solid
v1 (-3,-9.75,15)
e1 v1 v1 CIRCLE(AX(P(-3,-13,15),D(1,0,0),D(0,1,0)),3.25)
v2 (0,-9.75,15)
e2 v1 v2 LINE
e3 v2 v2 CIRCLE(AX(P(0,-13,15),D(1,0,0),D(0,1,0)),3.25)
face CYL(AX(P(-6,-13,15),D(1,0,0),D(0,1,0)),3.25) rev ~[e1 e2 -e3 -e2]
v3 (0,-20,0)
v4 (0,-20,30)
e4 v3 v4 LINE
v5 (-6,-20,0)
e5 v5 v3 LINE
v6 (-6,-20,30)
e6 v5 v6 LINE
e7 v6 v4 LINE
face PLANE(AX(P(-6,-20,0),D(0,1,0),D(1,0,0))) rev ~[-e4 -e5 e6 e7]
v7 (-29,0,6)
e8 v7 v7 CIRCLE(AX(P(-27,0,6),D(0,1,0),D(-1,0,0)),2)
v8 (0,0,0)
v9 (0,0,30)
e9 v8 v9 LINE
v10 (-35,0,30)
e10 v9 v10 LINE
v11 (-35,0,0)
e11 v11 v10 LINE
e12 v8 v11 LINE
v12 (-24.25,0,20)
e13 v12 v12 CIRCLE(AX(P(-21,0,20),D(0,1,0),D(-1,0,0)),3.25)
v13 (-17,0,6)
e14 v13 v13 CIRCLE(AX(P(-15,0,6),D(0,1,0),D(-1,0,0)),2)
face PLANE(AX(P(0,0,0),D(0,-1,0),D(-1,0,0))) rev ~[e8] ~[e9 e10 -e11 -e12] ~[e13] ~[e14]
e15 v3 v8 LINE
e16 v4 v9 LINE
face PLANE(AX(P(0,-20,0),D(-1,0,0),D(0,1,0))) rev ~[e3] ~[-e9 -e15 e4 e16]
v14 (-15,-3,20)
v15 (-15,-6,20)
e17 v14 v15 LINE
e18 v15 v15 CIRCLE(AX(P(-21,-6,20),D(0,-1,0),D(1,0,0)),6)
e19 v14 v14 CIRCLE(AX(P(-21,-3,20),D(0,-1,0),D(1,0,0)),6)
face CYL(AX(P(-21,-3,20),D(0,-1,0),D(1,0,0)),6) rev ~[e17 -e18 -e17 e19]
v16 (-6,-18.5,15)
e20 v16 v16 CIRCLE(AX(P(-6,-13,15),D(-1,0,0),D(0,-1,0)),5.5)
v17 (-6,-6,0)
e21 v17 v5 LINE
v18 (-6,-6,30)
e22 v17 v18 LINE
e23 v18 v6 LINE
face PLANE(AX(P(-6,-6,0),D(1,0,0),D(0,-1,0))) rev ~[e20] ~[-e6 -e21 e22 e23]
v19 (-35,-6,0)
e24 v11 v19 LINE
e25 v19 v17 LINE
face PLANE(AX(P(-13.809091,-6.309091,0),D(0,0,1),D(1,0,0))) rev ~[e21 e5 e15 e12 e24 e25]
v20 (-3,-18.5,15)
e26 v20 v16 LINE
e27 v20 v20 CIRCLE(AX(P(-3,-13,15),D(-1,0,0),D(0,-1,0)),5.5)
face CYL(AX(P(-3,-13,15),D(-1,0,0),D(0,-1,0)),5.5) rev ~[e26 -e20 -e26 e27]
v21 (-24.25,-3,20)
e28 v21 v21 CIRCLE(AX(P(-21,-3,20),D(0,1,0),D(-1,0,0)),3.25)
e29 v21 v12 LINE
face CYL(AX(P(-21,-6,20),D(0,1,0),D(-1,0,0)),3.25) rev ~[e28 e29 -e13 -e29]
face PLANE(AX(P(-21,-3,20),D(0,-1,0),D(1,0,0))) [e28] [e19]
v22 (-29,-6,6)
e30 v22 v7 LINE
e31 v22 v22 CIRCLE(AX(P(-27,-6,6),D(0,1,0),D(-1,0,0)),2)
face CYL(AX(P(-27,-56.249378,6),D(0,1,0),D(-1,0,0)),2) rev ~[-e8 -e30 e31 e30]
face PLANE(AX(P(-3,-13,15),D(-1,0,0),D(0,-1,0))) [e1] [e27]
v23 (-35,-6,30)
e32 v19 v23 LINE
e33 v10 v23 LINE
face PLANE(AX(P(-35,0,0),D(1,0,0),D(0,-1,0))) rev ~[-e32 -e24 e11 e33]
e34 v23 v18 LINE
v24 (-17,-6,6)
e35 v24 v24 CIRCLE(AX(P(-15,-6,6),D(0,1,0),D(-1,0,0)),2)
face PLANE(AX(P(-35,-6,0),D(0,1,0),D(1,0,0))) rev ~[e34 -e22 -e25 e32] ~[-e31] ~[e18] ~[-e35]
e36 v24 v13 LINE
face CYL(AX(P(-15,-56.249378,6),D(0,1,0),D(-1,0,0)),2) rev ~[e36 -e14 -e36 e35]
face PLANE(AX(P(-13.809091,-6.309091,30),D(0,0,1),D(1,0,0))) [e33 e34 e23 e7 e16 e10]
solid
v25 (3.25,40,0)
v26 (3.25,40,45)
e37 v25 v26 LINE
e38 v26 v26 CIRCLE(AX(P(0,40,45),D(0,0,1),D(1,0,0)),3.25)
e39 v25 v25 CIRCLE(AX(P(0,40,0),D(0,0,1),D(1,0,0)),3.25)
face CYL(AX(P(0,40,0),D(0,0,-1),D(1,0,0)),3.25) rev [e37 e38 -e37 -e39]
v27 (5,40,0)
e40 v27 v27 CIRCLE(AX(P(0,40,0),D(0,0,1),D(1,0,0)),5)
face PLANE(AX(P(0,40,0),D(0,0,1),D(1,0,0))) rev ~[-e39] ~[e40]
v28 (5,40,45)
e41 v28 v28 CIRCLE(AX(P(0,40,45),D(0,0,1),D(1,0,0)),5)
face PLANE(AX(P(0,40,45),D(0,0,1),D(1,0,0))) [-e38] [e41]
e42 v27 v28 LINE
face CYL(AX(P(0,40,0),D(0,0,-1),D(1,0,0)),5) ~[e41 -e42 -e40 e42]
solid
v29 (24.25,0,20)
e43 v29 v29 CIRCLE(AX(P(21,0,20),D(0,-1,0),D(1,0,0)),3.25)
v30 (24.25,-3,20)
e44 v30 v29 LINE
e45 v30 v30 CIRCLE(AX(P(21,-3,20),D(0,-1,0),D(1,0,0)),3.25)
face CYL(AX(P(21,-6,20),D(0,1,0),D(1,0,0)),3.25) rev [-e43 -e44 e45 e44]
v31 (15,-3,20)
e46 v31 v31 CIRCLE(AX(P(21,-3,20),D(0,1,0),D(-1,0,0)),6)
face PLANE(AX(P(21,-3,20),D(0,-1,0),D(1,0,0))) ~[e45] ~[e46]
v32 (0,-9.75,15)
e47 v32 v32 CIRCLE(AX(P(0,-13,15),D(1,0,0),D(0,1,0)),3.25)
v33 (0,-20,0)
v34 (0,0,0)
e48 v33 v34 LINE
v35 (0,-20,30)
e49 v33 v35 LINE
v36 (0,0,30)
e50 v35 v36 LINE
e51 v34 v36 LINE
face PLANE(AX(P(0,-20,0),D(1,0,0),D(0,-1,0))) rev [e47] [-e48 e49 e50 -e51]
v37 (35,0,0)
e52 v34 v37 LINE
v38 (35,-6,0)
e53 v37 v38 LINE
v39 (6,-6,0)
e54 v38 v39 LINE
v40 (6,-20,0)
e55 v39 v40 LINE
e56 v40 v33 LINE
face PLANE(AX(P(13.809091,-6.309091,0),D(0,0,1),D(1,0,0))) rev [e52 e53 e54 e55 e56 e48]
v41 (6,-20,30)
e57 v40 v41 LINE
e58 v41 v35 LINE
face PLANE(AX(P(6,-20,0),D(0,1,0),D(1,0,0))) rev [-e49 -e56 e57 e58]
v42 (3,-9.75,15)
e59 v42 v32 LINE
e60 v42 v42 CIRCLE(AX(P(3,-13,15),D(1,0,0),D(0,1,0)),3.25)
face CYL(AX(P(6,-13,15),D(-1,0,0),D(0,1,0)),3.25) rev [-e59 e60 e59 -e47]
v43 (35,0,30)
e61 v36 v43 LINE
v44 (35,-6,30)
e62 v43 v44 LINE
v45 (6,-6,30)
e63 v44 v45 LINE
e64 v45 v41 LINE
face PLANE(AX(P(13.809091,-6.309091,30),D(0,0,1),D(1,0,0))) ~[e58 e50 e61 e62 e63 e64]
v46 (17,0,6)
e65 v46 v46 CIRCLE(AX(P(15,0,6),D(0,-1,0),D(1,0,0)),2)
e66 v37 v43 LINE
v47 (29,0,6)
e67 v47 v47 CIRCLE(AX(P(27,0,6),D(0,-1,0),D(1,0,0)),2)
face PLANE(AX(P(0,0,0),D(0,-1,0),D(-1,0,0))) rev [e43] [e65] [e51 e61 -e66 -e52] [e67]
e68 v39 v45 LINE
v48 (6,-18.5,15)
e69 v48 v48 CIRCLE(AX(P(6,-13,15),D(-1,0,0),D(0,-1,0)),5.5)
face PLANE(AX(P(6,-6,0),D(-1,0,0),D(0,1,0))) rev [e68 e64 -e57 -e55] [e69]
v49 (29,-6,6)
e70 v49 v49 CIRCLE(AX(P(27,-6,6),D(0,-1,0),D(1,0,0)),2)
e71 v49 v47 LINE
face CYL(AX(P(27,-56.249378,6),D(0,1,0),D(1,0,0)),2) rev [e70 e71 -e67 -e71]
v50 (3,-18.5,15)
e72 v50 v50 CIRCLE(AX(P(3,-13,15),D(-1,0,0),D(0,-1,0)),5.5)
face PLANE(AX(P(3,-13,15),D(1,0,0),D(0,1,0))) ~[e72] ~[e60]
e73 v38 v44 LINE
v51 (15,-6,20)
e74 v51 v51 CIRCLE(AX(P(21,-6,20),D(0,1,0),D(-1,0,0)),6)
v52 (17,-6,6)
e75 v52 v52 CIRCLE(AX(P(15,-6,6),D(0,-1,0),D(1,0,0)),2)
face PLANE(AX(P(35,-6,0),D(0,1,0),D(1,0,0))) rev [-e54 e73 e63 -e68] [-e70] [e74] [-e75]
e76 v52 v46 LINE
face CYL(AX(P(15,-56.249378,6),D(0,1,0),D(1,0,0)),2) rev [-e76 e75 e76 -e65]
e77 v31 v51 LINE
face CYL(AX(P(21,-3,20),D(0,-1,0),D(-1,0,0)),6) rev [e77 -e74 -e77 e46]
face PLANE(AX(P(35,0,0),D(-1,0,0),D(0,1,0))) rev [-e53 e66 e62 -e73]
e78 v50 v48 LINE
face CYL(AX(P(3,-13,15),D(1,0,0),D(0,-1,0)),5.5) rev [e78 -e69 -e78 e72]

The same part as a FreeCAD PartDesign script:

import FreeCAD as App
import Part
import Sketcher
from FreeCAD import Vector

doc = App.newDocument("Part")
body = doc.addObject("PartDesign::Body", "Body")

# Sketch on XY plane
sketch1 = doc.addObject("Sketcher::SketchObject", "Sketch")
body.addObject(sketch1)
sketch1.AttachmentSupport = (doc.XY_Plane, [""])
sketch1.MapMode = "FlatFace"
sketch1.addGeometry([
    Part.LineSegment(Vector(-6, -20, 0), Vector(0, -20, 0)),  # 0
    Part.LineSegment(Vector(0, -20, 0), Vector(0, 0, 0)),  # 1
    Part.LineSegment(Vector(0, 0, 0), Vector(-35, 0, 0)),  # 2
    Part.LineSegment(Vector(-35, 0, 0), Vector(-35, -6, 0)),  # 3
    Part.LineSegment(Vector(-35, -6, 0), Vector(-6, -6, 0)),  # 4
    Part.LineSegment(Vector(-6, -6, 0), Vector(-6, -20, 0)),  # 5
], False)
sketch1.addConstraint([
    Sketcher.Constraint("Coincident", 0, 2, 1, 1),
    Sketcher.Constraint("Coincident", 1, 2, 2, 1),
    Sketcher.Constraint("Coincident", 2, 2, 3, 1),
    Sketcher.Constraint("Coincident", 3, 2, 4, 1),
    Sketcher.Constraint("Coincident", 4, 2, 5, 1),
    Sketcher.Constraint("Coincident", 5, 2, 0, 1),
    Sketcher.Constraint("Horizontal", 0),
    Sketcher.Constraint("Vertical", 1),
    Sketcher.Constraint("Horizontal", 2),
    Sketcher.Constraint("Vertical", 3),
    Sketcher.Constraint("Horizontal", 4),
    Sketcher.Constraint("Vertical", 5),
    Sketcher.Constraint("Coincident", 1, 2, -1, 1),
    Sketcher.Constraint("Equal", 0, 3),
    Sketcher.Constraint("DistanceX", 0, 1, 0, 2, 6.0),
    Sketcher.Constraint("DistanceX", 2, 2, 2, 1, 35.0),
    Sketcher.Constraint("DistanceY", 1, 1, 1, 2, 20.0),
])
pad1 = doc.addObject("PartDesign::Pad", "Pad")
body.addObject(pad1)
pad1.Profile = sketch1
pad1.Length = 30

# Sketch on XZ plane
sketch2 = doc.addObject("Sketcher::SketchObject", "Sketch001")
body.addObject(sketch2)
sketch2.AttachmentSupport = (doc.XZ_Plane, [""])
sketch2.MapMode = "FlatFace"
sketch2.AttachmentOffset = App.Placement(Vector(0, 0, 6), App.Rotation())
sketch2.addGeometry(Part.Circle(Vector(-21, 20, 0), Vector(0, 0, 1), 3.25), False)
sketch2.addConstraint([
    Sketcher.Constraint("Diameter", 0, 6.5),
    Sketcher.Constraint("DistanceX", 0, 3, -1, 1, 21.0),
    Sketcher.Constraint("DistanceY", -1, 1, 0, 3, 20.0),
])
doc.recompute()
hole = doc.addObject("PartDesign::Hole", "Hole")
body.addObject(hole)
hole.Profile = sketch2
hole.ThreadType = "None"
hole.Diameter = 6.5
hole.DepthType = "ThroughAll"
hole.HoleCutType = "Counterbore"
hole.HoleCutDiameter = 12
hole.HoleCutDepth = 3

# Sketch on XZ plane
sketch3 = doc.addObject("Sketcher::SketchObject", "Sketch002")
body.addObject(sketch3)
sketch3.AttachmentSupport = (doc.XZ_Plane, [""])
sketch3.MapMode = "FlatFace"
sketch3.AttachmentOffset = App.Placement(Vector(0, 0, 6), App.Rotation())
sketch3.addGeometry([
    Part.Circle(Vector(-27, 6, 0), Vector(0, 0, 1), 2),
    Part.Circle(Vector(-15, 6, 0), Vector(0, 0, 1), 2),
], False)
sketch3.addConstraint([
    Sketcher.Constraint("Equal", 0, 1),
    Sketcher.Constraint("Horizontal", 0, 3, 1, 3),
    Sketcher.Constraint("Diameter", 0, 4.0),
    Sketcher.Constraint("DistanceX", 0, 3, -1, 1, 27.0),
    Sketcher.Constraint("DistanceY", -1, 1, 0, 3, 6.0),
    Sketcher.Constraint("DistanceX", 1, 3, -1, 1, 15.0),
])
doc.recompute()
hole2 = doc.addObject("PartDesign::Hole", "Hole001")
body.addObject(hole2)
hole2.Profile = sketch3
hole2.ThreadType = "None"
hole2.Diameter = 4
hole2.DepthType = "ThroughAll"

# Sketch on YZ plane
sketch4 = doc.addObject("Sketcher::SketchObject", "Sketch003")
body.addObject(sketch4)
sketch4.AttachmentSupport = (doc.YZ_Plane, [""])
sketch4.MapMode = "FlatFace"
sketch4.AttachmentOffset = App.Placement(Vector(0, 0, -6), App.Rotation())
sketch4.addGeometry(Part.Circle(Vector(-13, 15, 0), Vector(0, 0, 1), 3.25), False)
sketch4.addConstraint([
    Sketcher.Constraint("Diameter", 0, 6.5),
    Sketcher.Constraint("DistanceX", 0, 3, -1, 1, 13.0),
    Sketcher.Constraint("DistanceY", -1, 1, 0, 3, 15.0),
])
doc.recompute()
hole3 = doc.addObject("PartDesign::Hole", "Hole002")
body.addObject(hole3)
hole3.Profile = sketch4
hole3.ThreadType = "None"
hole3.Diameter = 6.5
hole3.DepthType = "ThroughAll"
hole3.HoleCutType = "Counterbore"
hole3.HoleCutDiameter = 11
hole3.HoleCutDepth = 3
hole3.Reversed = True
body2 = doc.addObject("PartDesign::Body", "Body001")
doc.recompute()

mirroring = doc.addObject("Part::Mirroring", "Mirroring")
mirroring.Source = body
mirroring.Base = Vector(0, 0, 0)
mirroring.Normal = Vector(1, 0, 0)
body2.BaseFeature = mirroring
doc.recompute()
body3 = doc.addObject("PartDesign::Body", "Body002")

# Sketch on XY plane
sketch5 = doc.addObject("Sketcher::SketchObject", "Sketch004")
body3.addObject(sketch5)
sketch5.AttachmentSupport = (doc.getObject("XY_Plane002"), [""])
sketch5.MapMode = "FlatFace"
sketch5.addGeometry([
    Part.Circle(Vector(0, 40, 0), Vector(0, 0, 1), 5),
    Part.Circle(Vector(0, 40, 0), Vector(0, 0, 1), 3.25),
], False)
sketch5.addConstraint([
    Sketcher.Constraint("Coincident", 1, 3, 0, 3),
    Sketcher.Constraint("PointOnObject", 0, 3, -2),
    Sketcher.Constraint("Diameter", 0, 10.0),
    Sketcher.Constraint("Diameter", 1, 6.5),
    Sketcher.Constraint("DistanceY", -1, 1, 0, 3, 40.0),
])
pad2 = doc.addObject("PartDesign::Pad", "Pad001")
body3.addObject(pad2)
pad2.Profile = sketch5
pad2.Length = 45
mirroring.Visibility = False

doc.recompute()
